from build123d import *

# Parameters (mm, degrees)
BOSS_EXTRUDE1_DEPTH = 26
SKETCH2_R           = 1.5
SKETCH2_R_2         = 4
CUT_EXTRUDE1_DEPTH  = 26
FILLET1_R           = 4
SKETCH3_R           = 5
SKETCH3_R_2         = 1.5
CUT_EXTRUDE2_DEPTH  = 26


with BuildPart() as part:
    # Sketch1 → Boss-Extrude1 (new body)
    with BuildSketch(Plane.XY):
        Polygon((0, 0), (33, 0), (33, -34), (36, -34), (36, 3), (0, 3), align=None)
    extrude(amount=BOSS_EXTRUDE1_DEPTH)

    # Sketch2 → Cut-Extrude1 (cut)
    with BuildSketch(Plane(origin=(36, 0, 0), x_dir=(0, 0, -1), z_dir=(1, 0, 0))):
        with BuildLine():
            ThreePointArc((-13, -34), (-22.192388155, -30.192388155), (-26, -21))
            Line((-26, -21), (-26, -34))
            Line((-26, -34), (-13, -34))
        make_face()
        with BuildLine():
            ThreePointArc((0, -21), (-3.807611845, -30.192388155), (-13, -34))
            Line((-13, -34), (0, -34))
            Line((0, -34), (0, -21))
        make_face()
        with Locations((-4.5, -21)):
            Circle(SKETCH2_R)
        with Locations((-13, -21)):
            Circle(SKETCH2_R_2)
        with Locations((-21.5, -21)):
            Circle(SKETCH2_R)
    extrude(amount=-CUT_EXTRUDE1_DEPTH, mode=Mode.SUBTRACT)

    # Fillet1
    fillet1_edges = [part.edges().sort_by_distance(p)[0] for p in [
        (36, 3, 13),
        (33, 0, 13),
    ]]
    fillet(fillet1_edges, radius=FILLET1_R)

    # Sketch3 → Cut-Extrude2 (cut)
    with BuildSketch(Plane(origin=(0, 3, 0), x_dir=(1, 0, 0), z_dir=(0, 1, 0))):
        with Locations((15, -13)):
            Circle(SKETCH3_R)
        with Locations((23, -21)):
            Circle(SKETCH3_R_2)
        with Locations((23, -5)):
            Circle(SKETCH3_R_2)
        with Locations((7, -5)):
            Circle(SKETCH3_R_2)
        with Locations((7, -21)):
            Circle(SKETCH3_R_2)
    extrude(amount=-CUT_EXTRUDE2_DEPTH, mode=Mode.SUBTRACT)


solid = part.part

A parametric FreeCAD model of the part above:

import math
import FreeCAD as App
import Part
import Sketcher
from FreeCAD import Vector


def edges_at(feature, points):
    """Names of the edges that pass closest to the given points."""
    edges = feature.Shape.Edges
    near = lambda p: min(range(len(edges)), key=lambda i: edges[i].distToShape(Part.Vertex(*p))[0])
    return sorted({f"Edge{near(p) + 1}" for p in points})

doc = App.newDocument("Part")
params = doc.addObject("Spreadsheet::Sheet", "Params")
for row, (alias, value) in enumerate([
    ("sketch1_width", "33 mm"),
    ("sketch1_width2", "3 mm"),
    ("sketch1_height", "34 mm"),
    ("pad1_length", "26 mm"),
    ("sketch2_diameter", "3 mm"),
    ("sketch2_diameter2", "8 mm"),
    ("sketch2_radius", "13 mm"),
    ("pocket1_length", "26 mm"),
    ("fillet_radius", "4 mm"),
    ("sketch3_diameter", "10 mm"),
    ("sketch3_diameter2", "3 mm"),
    ("pocket2_length", "26 mm"),
], start=1):
    params.set(f"A{row}", alias)
    params.set(f"B{row}", "=" + value)
    params.setAlias(f"B{row}", alias)

body = doc.addObject("PartDesign::Body", "Body")

sketch1 = body.newObject("Sketcher::SketchObject", "Sketch")
sketch1.AttachmentSupport = (doc.getObject("XY_Plane"), [""])
sketch1.MapMode = "FlatFace"
sketch1.addGeometry([
    Part.LineSegment(Vector(0, 0, 0), Vector(33, 0, 0)),
    Part.LineSegment(Vector(33, 0, 0), Vector(33, -34, 0)),
    Part.LineSegment(Vector(33, -34, 0), Vector(36, -34, 0)),
    Part.LineSegment(Vector(36, -34, 0), Vector(36, 3, 0)),
    Part.LineSegment(Vector(36, 3, 0), Vector(0, 3, 0)),
    Part.LineSegment(Vector(0, 3, 0), Vector(0, 0, 0)),
], False)
sketch1.addConstraint([
    Sketcher.Constraint("Coincident", 0, 2, 1, 1),
    Sketcher.Constraint("Coincident", 1, 2, 2, 1),
    Sketcher.Constraint("Coincident", 2, 2, 3, 1),
    Sketcher.Constraint("Coincident", 3, 2, 4, 1),
    Sketcher.Constraint("Coincident", 4, 2, 5, 1),
    Sketcher.Constraint("Coincident", 5, 2, 0, 1),
    Sketcher.Constraint("Horizontal", 0),
    Sketcher.Constraint("Vertical", 1),
    Sketcher.Constraint("Horizontal", 2),
    Sketcher.Constraint("Vertical", 3),
    Sketcher.Constraint("Horizontal", 4),
    Sketcher.Constraint("Vertical", 5),
    Sketcher.Constraint("Coincident", 5, 2, -1, 1),
    Sketcher.Constraint("Equal", 2, 5),
    Sketcher.Constraint("DistanceX", 0, 1, 0, 2, 33.0),
    Sketcher.Constraint("DistanceX", 2, 1, 2, 2, 3.0),
    Sketcher.Constraint("DistanceY", 1, 2, 1, 1, 34.0),
])
sketch1.setExpression("Constraints[14]", "Params.sketch1_width")
sketch1.setExpression("Constraints[15]", "Params.sketch1_width2")
sketch1.setExpression("Constraints[16]", "Params.sketch1_height")
pad1 = body.newObject("PartDesign::Pad", "Pad")
pad1.Profile = sketch1
pad1.setExpression("Length", "Params.pad1_length")

sketch2 = body.newObject("Sketcher::SketchObject", "Sketch001")
sketch2.AttachmentSupport = (doc.getObject("YZ_Plane"), [""])
sketch2.MapMode = "FlatFace"
sketch2.AttachmentOffset = App.Placement(Vector(0, 0, 36), App.Rotation())
sketch2.addGeometry([
    Part.ArcOfCircle(Part.Circle(Vector(-21, 13, 0), Vector(0, 0, 1), 13), math.radians(90), math.radians(180)),
    Part.LineSegment(Vector(-21, 26, 0), Vector(-34, 26, 0)),
    Part.LineSegment(Vector(-34, 26, 0), Vector(-34, 13, 0)),
    Part.ArcOfCircle(Part.Circle(Vector(-21, 13, 0), Vector(0, 0, 1), 13), math.radians(-180), math.radians(-90)),
    Part.LineSegment(Vector(-34, 13, 0), Vector(-34, 0, 0)),
    Part.LineSegment(Vector(-34, 0, 0), Vector(-21, 0, 0)),
    Part.Circle(Vector(-21, 4.5, 0), Vector(0, 0, 1), 1.5),
    Part.Circle(Vector(-21, 13, 0), Vector(0, 0, 1), 4),
    Part.Circle(Vector(-21, 21.5, 0), Vector(0, 0, 1), 1.5),
], False)
sketch2.addConstraint([
    Sketcher.Constraint("Tangent", 0, 1, 1, 1),
    Sketcher.Constraint("Coincident", 1, 2, 2, 1),
    Sketcher.Constraint("Tangent", 2, 2, 0, 2),
    Sketcher.Constraint("Tangent", 3, 1, 4, 1),
    Sketcher.Constraint("Coincident", 4, 2, 5, 1),
    Sketcher.Constraint("Tangent", 5, 2, 3, 2),
    Sketcher.Constraint("Horizontal", 1),
    Sketcher.Constraint("Vertical", 2),
    Sketcher.Constraint("Vertical", 4),
    Sketcher.Constraint("Horizontal", 5),
    Sketcher.Constraint("Coincident", 3, 3, 0, 3),
    Sketcher.Constraint("Coincident", 7, 3, 0, 3),
    Sketcher.Constraint("Equal", 0, 3),
    Sketcher.Constraint("Equal", 6, 8),
    Sketcher.Constraint("PointOnObject", 4, 2, -1),
    Sketcher.Constraint("Vertical", 3, 3, 6, 3),
    Sketcher.Constraint("Vertical", 7, 3, 8, 3),
    Sketcher.Constraint("Diameter", 6, 3.0),
    Sketcher.Constraint("Diameter", 7, 8.0),
    Sketcher.Constraint("Radius", 0, 13.0),
    Sketcher.Constraint("DistanceX", 0, 3, -1, 1, 21.0),
    Sketcher.Constraint("DistanceY", 6, 3, 8, 3, 17.0),
    Sketcher.Constraint("DistanceY", -1, 1, 6, 3, 4.5),
])
sketch2.setExpression("Constraints[17]", "Params.sketch2_diameter")
sketch2.setExpression("Constraints[18]", "Params.sketch2_diameter2")
sketch2.setExpression("Constraints[19]", "Params.sketch2_radius")
pocket1 = body.newObject("PartDesign::Pocket", "Pocket")
pocket1.Profile = sketch2
pocket1.setExpression("Length", "Params.pocket1_length")
doc.recompute()

fillet = body.newObject("PartDesign::Fillet", "Fillet")
fillet.Base = (pocket1, edges_at(pocket1, [(36, 3, 13), (33, 0, 13)]))
fillet.setExpression("Radius", "Params.fillet_radius")

sketch3 = body.newObject("Sketcher::SketchObject", "Sketch002")
sketch3.AttachmentSupport = (doc.getObject("XZ_Plane"), [""])
sketch3.MapMode = "FlatFace"
sketch3.AttachmentOffset = App.Placement(Vector(0, 0, -3), App.Rotation())
sketch3.addGeometry([
    Part.Circle(Vector(15, 13, 0), Vector(0, 0, 1), 5),
    Part.Circle(Vector(23, 21, 0), Vector(0, 0, 1), 1.5),
    Part.Circle(Vector(23, 5, 0), Vector(0, 0, 1), 1.5),
    Part.Circle(Vector(7, 5, 0), Vector(0, 0, 1), 1.5),
    Part.Circle(Vector(7, 21, 0), Vector(0, 0, 1), 1.5),
], False)
sketch3.addConstraint([
    Sketcher.Constraint("Equal", 1, 2),
    Sketcher.Constraint("Equal", 2, 3),
    Sketcher.Constraint("Equal", 3, 4),
    Sketcher.Constraint("Horizontal", 2, 3, 3, 3),
    Sketcher.Constraint("Horizontal", 1, 3, 4, 3),
    Sketcher.Constraint("Vertical", 1, 3, 2, 3),
    Sketcher.Constraint("Vertical", 3, 3, 4, 3),
    Sketcher.Constraint("Diameter", 0, 10.0),
    Sketcher.Constraint("Diameter", 1, 3.0),
    Sketcher.Constraint("DistanceX", -1, 1, 0, 3, 15.0),
    Sketcher.Constraint("DistanceY", -1, 1, 0, 3, 13.0),
    Sketcher.Constraint("DistanceX", -1, 1, 1, 3, 23.0),
    Sketcher.Constraint("DistanceY", -1, 1, 1, 3, 21.0),
    Sketcher.Constraint("DistanceY", -1, 1, 2, 3, 5.0),
    Sketcher.Constraint("DistanceX", -1, 1, 3, 3, 7.0),
])
sketch3.setExpression("Constraints[7]", "Params.sketch3_diameter")
sketch3.setExpression("Constraints[8]", "Params.sketch3_diameter2")
pocket2 = body.newObject("PartDesign::Pocket", "Pocket001")
pocket2.Profile = sketch3
pocket2.setExpression("Length", "Params.pocket2_length")
pocket2.Reversed = True

doc.recompute()
